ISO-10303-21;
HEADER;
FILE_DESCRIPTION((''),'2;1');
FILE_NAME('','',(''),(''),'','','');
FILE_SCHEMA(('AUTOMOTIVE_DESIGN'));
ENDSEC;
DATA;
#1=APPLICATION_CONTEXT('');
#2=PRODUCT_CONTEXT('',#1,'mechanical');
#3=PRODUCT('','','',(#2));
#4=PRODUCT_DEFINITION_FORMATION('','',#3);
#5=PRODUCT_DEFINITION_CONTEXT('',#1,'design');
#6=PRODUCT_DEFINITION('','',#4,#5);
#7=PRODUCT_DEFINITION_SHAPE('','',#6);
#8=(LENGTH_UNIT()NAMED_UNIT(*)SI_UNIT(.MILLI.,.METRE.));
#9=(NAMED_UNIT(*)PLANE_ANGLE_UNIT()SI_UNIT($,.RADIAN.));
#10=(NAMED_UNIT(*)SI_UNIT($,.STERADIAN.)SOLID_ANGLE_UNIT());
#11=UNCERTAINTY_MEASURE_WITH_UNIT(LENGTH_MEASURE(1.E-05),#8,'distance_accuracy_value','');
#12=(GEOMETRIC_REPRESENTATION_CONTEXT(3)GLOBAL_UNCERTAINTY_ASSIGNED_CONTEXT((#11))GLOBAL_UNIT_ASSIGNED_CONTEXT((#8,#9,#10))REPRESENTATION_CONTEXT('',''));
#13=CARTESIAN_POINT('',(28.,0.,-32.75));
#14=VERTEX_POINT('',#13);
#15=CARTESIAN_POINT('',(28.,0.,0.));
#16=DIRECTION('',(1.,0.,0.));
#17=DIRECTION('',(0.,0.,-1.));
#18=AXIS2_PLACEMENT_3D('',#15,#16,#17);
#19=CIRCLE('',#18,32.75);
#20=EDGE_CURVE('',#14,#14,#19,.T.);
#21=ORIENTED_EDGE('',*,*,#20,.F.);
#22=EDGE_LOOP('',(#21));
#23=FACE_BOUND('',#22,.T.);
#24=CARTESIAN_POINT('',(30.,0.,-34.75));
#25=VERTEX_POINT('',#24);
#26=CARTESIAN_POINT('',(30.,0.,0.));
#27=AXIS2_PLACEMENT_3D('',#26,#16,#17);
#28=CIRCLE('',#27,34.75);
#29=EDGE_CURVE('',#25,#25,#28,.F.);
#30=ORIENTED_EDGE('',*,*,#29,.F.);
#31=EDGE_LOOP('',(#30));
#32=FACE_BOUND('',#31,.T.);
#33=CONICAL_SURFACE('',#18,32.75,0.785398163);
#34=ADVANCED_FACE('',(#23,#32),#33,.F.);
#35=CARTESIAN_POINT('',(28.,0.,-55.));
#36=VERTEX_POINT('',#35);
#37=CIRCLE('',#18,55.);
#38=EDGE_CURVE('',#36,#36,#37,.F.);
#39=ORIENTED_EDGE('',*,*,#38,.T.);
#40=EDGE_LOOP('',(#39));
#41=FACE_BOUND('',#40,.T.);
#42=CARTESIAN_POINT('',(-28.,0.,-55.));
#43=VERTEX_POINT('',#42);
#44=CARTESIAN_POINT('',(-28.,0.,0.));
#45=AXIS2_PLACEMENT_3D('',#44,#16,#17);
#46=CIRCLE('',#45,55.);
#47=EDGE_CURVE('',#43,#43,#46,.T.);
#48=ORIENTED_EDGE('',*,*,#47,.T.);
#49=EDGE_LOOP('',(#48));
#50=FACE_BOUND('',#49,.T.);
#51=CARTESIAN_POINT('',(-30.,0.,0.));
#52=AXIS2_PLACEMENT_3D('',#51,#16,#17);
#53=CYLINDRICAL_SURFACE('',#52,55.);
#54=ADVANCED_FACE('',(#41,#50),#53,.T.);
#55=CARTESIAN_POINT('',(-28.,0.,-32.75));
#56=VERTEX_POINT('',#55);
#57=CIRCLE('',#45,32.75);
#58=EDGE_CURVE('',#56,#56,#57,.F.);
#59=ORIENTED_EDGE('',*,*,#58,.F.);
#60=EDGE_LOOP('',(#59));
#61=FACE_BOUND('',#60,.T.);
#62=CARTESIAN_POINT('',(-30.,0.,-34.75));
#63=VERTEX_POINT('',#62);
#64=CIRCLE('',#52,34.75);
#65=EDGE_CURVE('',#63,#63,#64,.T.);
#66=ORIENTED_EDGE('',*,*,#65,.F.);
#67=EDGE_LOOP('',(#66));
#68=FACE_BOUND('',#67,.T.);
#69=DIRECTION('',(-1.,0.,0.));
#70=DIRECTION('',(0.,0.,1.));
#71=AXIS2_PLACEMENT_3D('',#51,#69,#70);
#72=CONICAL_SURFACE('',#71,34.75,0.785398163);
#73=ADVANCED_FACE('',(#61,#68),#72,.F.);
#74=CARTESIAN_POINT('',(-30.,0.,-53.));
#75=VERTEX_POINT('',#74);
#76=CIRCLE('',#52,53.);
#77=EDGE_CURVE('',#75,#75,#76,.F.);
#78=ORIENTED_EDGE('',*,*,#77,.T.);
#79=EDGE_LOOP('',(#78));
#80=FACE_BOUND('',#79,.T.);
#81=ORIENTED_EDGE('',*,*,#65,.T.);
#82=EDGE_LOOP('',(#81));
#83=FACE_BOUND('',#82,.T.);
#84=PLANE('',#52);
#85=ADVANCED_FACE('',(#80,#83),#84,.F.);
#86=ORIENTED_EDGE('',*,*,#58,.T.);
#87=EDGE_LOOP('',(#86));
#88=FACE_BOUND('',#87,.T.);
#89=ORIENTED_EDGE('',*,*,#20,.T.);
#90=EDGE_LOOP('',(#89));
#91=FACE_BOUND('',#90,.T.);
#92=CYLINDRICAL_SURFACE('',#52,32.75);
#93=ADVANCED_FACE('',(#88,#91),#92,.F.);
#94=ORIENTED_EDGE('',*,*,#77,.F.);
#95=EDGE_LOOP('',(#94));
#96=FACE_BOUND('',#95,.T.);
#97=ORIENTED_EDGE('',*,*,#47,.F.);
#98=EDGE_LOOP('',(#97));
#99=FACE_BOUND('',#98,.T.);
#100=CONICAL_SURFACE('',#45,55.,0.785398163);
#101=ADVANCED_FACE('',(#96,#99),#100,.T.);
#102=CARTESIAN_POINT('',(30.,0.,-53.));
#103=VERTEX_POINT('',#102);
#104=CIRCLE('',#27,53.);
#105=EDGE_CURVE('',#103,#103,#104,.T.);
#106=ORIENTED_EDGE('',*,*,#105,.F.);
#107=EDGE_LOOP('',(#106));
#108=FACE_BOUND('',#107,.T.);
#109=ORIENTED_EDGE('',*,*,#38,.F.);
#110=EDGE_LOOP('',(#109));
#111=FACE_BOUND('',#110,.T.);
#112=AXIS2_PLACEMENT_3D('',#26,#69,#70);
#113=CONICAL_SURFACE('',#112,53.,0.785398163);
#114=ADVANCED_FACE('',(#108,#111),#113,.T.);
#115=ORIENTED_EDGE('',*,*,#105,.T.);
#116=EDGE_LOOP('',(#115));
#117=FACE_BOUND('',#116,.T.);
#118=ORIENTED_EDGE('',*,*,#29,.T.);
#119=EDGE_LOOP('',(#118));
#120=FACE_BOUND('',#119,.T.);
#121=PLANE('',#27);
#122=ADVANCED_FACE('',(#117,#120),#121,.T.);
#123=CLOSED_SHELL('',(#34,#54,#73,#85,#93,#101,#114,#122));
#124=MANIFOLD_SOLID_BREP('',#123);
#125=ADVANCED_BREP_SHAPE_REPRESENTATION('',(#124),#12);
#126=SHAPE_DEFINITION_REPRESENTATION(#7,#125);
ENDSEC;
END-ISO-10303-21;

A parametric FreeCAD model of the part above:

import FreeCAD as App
import Part
import Sketcher

V = App.Vector


def edges_at(feature, points):
    """Names of the edges that pass closest to the given points."""
    edges = feature.Shape.Edges
    near = lambda p: min(range(len(edges)), key=lambda i: edges[i].distToShape(Part.Vertex(*p))[0])
    return sorted({f"Edge{near(p) + 1}" for p in points})

doc = App.newDocument("Part")
body = doc.addObject("PartDesign::Body", "Body")

# Sketch on YZ plane
sketch1 = doc.addObject("Sketcher::SketchObject", "Sketch")
body.addObject(sketch1)
sketch1.AttachmentSupport = (doc.YZ_Plane, [""])
sketch1.MapMode = "FlatFace"
sketch1.addGeometry([
    Part.Circle(V(0, 0, 0), V(0, 0, 1), 55),
    Part.Circle(V(0, 0, 0), V(0, 0, 1), 30),
], False)
sketch1.addConstraint([
    Sketcher.Constraint("Coincident", 0, 3, -1, 1),
    Sketcher.Constraint("Coincident", 1, 3, -1, 1),
    Sketcher.Constraint("Diameter", 0, 110.0),
    Sketcher.Constraint("Diameter", 1, 60.0),
])
pad1 = doc.addObject("PartDesign::Pad", "Pad")
body.addObject(pad1)
pad1.Profile = sketch1
pad1.Length = 60
pad1.Midplane = True

# Sketch on YZ plane
sketch2 = doc.addObject("Sketcher::SketchObject", "Sketch001")
body.addObject(sketch2)
sketch2.AttachmentSupport = (doc.YZ_Plane, [""])
sketch2.MapMode = "FlatFace"
sketch2.addGeometry(Part.Circle(V(0, 0, 0), V(0, 0, 1), 32.75), False)
sketch2.addConstraint([
    Sketcher.Constraint("Coincident", 0, 3, -1, 1),
    Sketcher.Constraint("Diameter", 0, 65.5),
])
pocket1 = doc.addObject("PartDesign::Pocket", "Pocket")
body.addObject(pocket1)
pocket1.Profile = sketch2
pocket1.Length = 60
pocket1.Midplane = True
doc.recompute()

chamfer = doc.addObject("PartDesign::Chamfer", "Chamfer")
body.addObject(chamfer)
chamfer.Base = (pocket1, edges_at(pocket1, [(30, 0, 55), (-30, 0, 55)]))
chamfer.Size = 2
doc.recompute()

chamfer2 = doc.addObject("PartDesign::Chamfer", "Chamfer001")
body.addObject(chamfer2)
chamfer2.Base = (chamfer, edges_at(chamfer, [(30, 0, 32.75), (-30, 0, 32.75)]))
chamfer2.Size = 2

doc.recompute()
